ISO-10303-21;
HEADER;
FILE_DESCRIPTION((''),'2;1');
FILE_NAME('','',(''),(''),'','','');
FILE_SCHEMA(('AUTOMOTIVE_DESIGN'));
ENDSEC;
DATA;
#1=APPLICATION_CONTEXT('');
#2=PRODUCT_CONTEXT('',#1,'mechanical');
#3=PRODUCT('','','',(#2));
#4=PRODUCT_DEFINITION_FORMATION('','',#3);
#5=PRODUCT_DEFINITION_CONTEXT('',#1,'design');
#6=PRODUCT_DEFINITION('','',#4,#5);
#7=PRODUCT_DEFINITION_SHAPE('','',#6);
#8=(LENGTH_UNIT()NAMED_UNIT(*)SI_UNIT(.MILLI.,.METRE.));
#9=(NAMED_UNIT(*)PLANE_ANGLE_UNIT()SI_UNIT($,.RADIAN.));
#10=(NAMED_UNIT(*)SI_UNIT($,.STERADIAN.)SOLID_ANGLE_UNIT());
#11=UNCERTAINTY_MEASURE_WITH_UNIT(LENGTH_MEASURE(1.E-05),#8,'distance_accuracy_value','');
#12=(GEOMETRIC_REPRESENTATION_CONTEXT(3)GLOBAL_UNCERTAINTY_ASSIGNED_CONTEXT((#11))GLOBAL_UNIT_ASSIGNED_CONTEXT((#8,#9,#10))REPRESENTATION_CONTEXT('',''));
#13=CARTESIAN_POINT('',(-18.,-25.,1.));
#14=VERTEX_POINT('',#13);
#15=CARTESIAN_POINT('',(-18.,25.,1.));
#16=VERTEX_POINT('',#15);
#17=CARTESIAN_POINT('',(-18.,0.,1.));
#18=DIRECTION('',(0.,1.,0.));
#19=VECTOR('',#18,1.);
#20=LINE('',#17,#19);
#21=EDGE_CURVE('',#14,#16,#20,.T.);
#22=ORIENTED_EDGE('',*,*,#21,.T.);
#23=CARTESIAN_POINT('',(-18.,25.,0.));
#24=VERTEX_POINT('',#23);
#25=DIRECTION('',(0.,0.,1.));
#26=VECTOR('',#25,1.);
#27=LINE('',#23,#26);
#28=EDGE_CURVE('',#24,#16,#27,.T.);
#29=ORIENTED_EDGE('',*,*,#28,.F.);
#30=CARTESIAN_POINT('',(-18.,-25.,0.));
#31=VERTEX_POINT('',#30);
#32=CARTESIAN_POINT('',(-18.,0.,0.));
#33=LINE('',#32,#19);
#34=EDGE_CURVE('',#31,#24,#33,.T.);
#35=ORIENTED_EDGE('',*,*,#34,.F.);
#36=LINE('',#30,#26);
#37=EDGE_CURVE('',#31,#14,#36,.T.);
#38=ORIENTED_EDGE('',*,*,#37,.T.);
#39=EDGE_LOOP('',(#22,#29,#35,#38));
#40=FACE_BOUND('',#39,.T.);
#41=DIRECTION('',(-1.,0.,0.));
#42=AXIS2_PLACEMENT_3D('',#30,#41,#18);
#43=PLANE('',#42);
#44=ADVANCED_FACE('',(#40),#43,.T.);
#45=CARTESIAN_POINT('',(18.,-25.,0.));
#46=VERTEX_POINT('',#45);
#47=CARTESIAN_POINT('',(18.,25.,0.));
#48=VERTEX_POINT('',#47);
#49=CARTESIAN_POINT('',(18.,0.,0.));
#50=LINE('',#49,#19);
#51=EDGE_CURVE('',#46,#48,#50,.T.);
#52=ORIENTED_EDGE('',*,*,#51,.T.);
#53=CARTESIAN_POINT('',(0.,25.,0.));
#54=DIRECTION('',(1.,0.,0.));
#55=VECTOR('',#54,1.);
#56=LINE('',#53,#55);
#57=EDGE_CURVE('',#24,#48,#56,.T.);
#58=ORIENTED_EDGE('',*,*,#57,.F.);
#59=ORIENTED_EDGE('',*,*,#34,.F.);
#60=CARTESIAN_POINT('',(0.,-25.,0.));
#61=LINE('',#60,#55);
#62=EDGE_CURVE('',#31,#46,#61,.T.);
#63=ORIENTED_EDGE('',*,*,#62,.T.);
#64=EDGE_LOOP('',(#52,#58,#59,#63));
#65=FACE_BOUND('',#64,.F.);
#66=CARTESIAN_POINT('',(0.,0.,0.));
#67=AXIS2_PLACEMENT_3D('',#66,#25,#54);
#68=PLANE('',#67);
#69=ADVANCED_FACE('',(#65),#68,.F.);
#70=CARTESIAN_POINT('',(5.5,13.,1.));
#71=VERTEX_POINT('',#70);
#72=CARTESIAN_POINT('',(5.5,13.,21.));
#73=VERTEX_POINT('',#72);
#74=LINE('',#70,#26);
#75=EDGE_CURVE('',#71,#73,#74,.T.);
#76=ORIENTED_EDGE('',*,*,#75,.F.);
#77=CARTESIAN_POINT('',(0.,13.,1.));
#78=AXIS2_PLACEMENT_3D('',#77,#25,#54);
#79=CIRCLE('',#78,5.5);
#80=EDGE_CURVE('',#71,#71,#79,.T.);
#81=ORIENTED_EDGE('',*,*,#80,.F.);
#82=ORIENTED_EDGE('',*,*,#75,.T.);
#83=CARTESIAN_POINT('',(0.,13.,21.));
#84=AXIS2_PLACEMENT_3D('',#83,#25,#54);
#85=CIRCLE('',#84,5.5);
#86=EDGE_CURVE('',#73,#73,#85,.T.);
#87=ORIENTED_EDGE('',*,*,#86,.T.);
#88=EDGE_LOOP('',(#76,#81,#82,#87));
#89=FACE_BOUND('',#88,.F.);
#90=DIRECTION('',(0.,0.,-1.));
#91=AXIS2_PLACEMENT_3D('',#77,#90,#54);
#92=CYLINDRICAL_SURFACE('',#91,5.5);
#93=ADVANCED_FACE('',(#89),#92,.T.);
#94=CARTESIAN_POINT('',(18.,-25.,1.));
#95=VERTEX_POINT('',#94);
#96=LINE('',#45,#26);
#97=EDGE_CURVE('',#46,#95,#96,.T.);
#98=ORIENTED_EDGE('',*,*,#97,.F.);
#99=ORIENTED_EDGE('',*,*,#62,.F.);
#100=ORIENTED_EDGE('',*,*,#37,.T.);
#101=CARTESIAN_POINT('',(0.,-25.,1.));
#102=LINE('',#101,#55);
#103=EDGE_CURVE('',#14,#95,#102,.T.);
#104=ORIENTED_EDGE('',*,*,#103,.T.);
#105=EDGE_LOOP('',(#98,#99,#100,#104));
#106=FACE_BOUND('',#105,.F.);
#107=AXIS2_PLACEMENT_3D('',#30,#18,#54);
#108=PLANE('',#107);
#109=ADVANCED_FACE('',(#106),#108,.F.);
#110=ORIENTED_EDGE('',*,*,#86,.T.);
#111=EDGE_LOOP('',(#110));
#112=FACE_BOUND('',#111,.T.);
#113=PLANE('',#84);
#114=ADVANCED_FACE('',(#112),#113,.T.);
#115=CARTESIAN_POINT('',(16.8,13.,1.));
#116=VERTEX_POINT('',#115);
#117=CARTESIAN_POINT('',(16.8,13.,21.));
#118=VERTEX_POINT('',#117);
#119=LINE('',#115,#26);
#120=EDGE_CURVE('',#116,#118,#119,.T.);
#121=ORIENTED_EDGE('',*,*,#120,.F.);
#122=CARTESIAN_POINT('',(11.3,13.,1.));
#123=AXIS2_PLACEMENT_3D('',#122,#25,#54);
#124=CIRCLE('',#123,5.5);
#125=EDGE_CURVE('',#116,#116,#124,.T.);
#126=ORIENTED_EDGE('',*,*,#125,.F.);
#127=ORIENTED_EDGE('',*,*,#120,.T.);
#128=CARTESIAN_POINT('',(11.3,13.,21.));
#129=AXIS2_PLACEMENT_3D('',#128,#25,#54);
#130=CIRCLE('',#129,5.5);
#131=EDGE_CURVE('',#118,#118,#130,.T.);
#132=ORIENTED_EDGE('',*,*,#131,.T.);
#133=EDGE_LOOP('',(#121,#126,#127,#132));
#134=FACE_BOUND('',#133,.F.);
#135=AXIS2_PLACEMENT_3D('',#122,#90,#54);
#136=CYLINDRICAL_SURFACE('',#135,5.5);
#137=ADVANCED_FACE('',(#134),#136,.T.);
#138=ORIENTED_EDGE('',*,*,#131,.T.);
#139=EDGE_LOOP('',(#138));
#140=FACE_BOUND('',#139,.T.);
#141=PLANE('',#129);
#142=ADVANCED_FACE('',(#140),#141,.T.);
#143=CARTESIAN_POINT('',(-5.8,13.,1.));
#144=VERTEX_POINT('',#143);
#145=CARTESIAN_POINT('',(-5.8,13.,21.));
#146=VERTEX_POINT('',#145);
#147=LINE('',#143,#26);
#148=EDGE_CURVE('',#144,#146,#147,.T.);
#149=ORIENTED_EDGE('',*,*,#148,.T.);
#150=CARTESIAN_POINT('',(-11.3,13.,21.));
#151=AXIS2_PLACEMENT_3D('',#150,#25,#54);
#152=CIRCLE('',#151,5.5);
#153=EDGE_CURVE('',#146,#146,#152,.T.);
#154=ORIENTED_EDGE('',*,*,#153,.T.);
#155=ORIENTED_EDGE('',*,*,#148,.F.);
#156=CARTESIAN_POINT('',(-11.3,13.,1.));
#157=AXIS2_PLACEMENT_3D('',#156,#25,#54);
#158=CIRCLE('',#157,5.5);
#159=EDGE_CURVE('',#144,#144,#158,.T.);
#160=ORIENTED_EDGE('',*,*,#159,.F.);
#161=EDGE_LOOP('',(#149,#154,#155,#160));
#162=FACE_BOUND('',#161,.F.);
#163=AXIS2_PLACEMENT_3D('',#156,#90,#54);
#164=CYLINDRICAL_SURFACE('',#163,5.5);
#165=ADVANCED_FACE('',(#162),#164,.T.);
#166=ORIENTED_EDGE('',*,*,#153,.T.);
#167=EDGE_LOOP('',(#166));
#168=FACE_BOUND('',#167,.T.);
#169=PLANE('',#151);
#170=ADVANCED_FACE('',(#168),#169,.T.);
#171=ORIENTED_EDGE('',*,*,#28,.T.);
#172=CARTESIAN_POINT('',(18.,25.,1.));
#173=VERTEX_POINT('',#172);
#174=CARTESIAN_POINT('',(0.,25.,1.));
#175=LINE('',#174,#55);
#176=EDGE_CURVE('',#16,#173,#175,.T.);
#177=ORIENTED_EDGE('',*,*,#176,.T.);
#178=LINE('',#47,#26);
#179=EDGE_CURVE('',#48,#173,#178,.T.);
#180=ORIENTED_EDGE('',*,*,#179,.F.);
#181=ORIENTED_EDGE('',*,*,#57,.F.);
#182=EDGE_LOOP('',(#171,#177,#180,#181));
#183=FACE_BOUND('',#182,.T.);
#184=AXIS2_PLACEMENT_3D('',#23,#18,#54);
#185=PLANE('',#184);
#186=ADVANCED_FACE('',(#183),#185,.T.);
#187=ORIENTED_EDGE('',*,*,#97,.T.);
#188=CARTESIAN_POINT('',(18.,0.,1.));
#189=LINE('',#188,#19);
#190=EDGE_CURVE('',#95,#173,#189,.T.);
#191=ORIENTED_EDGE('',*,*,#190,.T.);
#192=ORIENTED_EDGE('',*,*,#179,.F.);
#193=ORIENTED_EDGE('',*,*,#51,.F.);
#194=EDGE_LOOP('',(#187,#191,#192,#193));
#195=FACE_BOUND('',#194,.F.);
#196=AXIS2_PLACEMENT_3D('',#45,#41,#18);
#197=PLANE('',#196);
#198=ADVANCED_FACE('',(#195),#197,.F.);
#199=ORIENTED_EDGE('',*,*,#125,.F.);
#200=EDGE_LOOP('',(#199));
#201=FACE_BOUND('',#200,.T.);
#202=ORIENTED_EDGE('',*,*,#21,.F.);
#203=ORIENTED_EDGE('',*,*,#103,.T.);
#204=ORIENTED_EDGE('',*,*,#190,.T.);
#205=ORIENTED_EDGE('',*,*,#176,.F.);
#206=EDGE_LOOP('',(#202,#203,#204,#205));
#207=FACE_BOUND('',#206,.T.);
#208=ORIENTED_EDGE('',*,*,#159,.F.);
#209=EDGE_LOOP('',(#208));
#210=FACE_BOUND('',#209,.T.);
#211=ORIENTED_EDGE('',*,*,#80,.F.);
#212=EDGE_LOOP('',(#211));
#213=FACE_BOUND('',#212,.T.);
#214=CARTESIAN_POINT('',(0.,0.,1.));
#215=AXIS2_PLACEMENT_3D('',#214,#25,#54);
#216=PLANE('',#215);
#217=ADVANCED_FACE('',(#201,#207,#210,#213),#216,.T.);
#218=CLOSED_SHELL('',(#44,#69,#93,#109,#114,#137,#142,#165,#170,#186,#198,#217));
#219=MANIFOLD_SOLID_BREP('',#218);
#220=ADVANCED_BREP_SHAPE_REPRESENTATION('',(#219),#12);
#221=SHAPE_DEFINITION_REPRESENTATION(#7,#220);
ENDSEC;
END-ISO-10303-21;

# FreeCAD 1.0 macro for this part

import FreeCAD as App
import Part
import Sketcher

V = App.Vector
Q = App.Units.Quantity

doc = App.newDocument("Part")
params = doc.addObject("Spreadsheet::Sheet", "Params")
for row, (alias, value) in enumerate([
    ("sketch1_width", "36 mm"),
    ("sketch1_height", "50 mm"),
    ("pad1_length", "1 mm"),
    ("sketch2_diameter", "11 mm"),
    ("pad2_length", "20 mm"),
], start=1):
    params.set(f"A{row}", alias)
    params.set(f"B{row}", "=" + value)
    params.setAlias(f"B{row}", alias)

body = doc.addObject("PartDesign::Body", "Body")

# Sketch on XY plane
sketch1 = body.newObject("Sketcher::SketchObject", "Sketch")
sketch1.AttachmentSupport = (doc.getObject("XY_Plane"), [""])
sketch1.MapMode = "FlatFace"
sketch1.addGeometry([
    Part.LineSegment(V(-18, 25, 0), V(-18, -25, 0)),
    Part.LineSegment(V(-18, -25, 0), V(18, -25, 0)),
    Part.LineSegment(V(18, -25, 0), V(18, 25, 0)),
    Part.LineSegment(V(18, 25, 0), V(-18, 25, 0)),
], False)
sketch1.addConstraint([
    Sketcher.Constraint("Coincident", 0, 2, 1, 1),
    Sketcher.Constraint("Coincident", 1, 2, 2, 1),
    Sketcher.Constraint("Coincident", 2, 2, 3, 1),
    Sketcher.Constraint("Coincident", 3, 2, 0, 1),
    Sketcher.Constraint("Vertical", 0),
    Sketcher.Constraint("Horizontal", 1),
    Sketcher.Constraint("Vertical", 2),
    Sketcher.Constraint("Horizontal", 3),
    Sketcher.Constraint("Symmetric", 0, 2, 2, 2, -1, 1),
    Sketcher.Constraint("DistanceX", 1, 1, 1, 2, Q("36 mm")),
    Sketcher.Constraint("DistanceY", 0, 2, 0, 1, Q("50 mm")),
])
sketch1.setExpression("Constraints[9]", "Params.sketch1_width")
sketch1.setExpression("Constraints[10]", "Params.sketch1_height")
pad1 = body.newObject("PartDesign::Pad", "Pad")
pad1.Profile = sketch1
pad1.setExpression("Length", "Params.pad1_length")

# Sketch on XY plane
sketch2 = body.newObject("Sketcher::SketchObject", "Sketch001")
sketch2.AttachmentSupport = (doc.getObject("XY_Plane"), [""])
sketch2.MapMode = "FlatFace"
sketch2.AttachmentOffset = App.Placement(V(0, 0, 1), App.Rotation())
sketch2.addGeometry([
    Part.Circle(V(-11, 13, 0), V(0, 0, 1), 6),
    Part.Circle(V(0, 13, 0), V(0, 0, 1), 6),
    Part.Circle(V(11, 13, 0), V(0, 0, 1), 6),
], False)
sketch2.addConstraint([
    Sketcher.Constraint("Equal", 0, 1),
    Sketcher.Constraint("Equal", 1, 2),
    Sketcher.Constraint("Symmetric", 0, 3, 2, 3, -2),
    Sketcher.Constraint("PointOnObject", 1, 3, -2),
    Sketcher.Constraint("Horizontal", 0, 3, 1, 3),
    Sketcher.Constraint("Diameter", 0, Q("11 mm")),
    Sketcher.Constraint("DistanceY", -1, 1, 0, 3, Q("13 mm")),
    Sketcher.Constraint("DistanceX", 0, 3, -1, 1, Q("11.3 mm")),
])
sketch2.setExpression("Constraints[5]", "Params.sketch2_diameter")
pad2 = body.newObject("PartDesign::Pad", "Pad001")
pad2.Profile = sketch2
pad2.setExpression("Length", "Params.pad2_length")

doc.recompute()
